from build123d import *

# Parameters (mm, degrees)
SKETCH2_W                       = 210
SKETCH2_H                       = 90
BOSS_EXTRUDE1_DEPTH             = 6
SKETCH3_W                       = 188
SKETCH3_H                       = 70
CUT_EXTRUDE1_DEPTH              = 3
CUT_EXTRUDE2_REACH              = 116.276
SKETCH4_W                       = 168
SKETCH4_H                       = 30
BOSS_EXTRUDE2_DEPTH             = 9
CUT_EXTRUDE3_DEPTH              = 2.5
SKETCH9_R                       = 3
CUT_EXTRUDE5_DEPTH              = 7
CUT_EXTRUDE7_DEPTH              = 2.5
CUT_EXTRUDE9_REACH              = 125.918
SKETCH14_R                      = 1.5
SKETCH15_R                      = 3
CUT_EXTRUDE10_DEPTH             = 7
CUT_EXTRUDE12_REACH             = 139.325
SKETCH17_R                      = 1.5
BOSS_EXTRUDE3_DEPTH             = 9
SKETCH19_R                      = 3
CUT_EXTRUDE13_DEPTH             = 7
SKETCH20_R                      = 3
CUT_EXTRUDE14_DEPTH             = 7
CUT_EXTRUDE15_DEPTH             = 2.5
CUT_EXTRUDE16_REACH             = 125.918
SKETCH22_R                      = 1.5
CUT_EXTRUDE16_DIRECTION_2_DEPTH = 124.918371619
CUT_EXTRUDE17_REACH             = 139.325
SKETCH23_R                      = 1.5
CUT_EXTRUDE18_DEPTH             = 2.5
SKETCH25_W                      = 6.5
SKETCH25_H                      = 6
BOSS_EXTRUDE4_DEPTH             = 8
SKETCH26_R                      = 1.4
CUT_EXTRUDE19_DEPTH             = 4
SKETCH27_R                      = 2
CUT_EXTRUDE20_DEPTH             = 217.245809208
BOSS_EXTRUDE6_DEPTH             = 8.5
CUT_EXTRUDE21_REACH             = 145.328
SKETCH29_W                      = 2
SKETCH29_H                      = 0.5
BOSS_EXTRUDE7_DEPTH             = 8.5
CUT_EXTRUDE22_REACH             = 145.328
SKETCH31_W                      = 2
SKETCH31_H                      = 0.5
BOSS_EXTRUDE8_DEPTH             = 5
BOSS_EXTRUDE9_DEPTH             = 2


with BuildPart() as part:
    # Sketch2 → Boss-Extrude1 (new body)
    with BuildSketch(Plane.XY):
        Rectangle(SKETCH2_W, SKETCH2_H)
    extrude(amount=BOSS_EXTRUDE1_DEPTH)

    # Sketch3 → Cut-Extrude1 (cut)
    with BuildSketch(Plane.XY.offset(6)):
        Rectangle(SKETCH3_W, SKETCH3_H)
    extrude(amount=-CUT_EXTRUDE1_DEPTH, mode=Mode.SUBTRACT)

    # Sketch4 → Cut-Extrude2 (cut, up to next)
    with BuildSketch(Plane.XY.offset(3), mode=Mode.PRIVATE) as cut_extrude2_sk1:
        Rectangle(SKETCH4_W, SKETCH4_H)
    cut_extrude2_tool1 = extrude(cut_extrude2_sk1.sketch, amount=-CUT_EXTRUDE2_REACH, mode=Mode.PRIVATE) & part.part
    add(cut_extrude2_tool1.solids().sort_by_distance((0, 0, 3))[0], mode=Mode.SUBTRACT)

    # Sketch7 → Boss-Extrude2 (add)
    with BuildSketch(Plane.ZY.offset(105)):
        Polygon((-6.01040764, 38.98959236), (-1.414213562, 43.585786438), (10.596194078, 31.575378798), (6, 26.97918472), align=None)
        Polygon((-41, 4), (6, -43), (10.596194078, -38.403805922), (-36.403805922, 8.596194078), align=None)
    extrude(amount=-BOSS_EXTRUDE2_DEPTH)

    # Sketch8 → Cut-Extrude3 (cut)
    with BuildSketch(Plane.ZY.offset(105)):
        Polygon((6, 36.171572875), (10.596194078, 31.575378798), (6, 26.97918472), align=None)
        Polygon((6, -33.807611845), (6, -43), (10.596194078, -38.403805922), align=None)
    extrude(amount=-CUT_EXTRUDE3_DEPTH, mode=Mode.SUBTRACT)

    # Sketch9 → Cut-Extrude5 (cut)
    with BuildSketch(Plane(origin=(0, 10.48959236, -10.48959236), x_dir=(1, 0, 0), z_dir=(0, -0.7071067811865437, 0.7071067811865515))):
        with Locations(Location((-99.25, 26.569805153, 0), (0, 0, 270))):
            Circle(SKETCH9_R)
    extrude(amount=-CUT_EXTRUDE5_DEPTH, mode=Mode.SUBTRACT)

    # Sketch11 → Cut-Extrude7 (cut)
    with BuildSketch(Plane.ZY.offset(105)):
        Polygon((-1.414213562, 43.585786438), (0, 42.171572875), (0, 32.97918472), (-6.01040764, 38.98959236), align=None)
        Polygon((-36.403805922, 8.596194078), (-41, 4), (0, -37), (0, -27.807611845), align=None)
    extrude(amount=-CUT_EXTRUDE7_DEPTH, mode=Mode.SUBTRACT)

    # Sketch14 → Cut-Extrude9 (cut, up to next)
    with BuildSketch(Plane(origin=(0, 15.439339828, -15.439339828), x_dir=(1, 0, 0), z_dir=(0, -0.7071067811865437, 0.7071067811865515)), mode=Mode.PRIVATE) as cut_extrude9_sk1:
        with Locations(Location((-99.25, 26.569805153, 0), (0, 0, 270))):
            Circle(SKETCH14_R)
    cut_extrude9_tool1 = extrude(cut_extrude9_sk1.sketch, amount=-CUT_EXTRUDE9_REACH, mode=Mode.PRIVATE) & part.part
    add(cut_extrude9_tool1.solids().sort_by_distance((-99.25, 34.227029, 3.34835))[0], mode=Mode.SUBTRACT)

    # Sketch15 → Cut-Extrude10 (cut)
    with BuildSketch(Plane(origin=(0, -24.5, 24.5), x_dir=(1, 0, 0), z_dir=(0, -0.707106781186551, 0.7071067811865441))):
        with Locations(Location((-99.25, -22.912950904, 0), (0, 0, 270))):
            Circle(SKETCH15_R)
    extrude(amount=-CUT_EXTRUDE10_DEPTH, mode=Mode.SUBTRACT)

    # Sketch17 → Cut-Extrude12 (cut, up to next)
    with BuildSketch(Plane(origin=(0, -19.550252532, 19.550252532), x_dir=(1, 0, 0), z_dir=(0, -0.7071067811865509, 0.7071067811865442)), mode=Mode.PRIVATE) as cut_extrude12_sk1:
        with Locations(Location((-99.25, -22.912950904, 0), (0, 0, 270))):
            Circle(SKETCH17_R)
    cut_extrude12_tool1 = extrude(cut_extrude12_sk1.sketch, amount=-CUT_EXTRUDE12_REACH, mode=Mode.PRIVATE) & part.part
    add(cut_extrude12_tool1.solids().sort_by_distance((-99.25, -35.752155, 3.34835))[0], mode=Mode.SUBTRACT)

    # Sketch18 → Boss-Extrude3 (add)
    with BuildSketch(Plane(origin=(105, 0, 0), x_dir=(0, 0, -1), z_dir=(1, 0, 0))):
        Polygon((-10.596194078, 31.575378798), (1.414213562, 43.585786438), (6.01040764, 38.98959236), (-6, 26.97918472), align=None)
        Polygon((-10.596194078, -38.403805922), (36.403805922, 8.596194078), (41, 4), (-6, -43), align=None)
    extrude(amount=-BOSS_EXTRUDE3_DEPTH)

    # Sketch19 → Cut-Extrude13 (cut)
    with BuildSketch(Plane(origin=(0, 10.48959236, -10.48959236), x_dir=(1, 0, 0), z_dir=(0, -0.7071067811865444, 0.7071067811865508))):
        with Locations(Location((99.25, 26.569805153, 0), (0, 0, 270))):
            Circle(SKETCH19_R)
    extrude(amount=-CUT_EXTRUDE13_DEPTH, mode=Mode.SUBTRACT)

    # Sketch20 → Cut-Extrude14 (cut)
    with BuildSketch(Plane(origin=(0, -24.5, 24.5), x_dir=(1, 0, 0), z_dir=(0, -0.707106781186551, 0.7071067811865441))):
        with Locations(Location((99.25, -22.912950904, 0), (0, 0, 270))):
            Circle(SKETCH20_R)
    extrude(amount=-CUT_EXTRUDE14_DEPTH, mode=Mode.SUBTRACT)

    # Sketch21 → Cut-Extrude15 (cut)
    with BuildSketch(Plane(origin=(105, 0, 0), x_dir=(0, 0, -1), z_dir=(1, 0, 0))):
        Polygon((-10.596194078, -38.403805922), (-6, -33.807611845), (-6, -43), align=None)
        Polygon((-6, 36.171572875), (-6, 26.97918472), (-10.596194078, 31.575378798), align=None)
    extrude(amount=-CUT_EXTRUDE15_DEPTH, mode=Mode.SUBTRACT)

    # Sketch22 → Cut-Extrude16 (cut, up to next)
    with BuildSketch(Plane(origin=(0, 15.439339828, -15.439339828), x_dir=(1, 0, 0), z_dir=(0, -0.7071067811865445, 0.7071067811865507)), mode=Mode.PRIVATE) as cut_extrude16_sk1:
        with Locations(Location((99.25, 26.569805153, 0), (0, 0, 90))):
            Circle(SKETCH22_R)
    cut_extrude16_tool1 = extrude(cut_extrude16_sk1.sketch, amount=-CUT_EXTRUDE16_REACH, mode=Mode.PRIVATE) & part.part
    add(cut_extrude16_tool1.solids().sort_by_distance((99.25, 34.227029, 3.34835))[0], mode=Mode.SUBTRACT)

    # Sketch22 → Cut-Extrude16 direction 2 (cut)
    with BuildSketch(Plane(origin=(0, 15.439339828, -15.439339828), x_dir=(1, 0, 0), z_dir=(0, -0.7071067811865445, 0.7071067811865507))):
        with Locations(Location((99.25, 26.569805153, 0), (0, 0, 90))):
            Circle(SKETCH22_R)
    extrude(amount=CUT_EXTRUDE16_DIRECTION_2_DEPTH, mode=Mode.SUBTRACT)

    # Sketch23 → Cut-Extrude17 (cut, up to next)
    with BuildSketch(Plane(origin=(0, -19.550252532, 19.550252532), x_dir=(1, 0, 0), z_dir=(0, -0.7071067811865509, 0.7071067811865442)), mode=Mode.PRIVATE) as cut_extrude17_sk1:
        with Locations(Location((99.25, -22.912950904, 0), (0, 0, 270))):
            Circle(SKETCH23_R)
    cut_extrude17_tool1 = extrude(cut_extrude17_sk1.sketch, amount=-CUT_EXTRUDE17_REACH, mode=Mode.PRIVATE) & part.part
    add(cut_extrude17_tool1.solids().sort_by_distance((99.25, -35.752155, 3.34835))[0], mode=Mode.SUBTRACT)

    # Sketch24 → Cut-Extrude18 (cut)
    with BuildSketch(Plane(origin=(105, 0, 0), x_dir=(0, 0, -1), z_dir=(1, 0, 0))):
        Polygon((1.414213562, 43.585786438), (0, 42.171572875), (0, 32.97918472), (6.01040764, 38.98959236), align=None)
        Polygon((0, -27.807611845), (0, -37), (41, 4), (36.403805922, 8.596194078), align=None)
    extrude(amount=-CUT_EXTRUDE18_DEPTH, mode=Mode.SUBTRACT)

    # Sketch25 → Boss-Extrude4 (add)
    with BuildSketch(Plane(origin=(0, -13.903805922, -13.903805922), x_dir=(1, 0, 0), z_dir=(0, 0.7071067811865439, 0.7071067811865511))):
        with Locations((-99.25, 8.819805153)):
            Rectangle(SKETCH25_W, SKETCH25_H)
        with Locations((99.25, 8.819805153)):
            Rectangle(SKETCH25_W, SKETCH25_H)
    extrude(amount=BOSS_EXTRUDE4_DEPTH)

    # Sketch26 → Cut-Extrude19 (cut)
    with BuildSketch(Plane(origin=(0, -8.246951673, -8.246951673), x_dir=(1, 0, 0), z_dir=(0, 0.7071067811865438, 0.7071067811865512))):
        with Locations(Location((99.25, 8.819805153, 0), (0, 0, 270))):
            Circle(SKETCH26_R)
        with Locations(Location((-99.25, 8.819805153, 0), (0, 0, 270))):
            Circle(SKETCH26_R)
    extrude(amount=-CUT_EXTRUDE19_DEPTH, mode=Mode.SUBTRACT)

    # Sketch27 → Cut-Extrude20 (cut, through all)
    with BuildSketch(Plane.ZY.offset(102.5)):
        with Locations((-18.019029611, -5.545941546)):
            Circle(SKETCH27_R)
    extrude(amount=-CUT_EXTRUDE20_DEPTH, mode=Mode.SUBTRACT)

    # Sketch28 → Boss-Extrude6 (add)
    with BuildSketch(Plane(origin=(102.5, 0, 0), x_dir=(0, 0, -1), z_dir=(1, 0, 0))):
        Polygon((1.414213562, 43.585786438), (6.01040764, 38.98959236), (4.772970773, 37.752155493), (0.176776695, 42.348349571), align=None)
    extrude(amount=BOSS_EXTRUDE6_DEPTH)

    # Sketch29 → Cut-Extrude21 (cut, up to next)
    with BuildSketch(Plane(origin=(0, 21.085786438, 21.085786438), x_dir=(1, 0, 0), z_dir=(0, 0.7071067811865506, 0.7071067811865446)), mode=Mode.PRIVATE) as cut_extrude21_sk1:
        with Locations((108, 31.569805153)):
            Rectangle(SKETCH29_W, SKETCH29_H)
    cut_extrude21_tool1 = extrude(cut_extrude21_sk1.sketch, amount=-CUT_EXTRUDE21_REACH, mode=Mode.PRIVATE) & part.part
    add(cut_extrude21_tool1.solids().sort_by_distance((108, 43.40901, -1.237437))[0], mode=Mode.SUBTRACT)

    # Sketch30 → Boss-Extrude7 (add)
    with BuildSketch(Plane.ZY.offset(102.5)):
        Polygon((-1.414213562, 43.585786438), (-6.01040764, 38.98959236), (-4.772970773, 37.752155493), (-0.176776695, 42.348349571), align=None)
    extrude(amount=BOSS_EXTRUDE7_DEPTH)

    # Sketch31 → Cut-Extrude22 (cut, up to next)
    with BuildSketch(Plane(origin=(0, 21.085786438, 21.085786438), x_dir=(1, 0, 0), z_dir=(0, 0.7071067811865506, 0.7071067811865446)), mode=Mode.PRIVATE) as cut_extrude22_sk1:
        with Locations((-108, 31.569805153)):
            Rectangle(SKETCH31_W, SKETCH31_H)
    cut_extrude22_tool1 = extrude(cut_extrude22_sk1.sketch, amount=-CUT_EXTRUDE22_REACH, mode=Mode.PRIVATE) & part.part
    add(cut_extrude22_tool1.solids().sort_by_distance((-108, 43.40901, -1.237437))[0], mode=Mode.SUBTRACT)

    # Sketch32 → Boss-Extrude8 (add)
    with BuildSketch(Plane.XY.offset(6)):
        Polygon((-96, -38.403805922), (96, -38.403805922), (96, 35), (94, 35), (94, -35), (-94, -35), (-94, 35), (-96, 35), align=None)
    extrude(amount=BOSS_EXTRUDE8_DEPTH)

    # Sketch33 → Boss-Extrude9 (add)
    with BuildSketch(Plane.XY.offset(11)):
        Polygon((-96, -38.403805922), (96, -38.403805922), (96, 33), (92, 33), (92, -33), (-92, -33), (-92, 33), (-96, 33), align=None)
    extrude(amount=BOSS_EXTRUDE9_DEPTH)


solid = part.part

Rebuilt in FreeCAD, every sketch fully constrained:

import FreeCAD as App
import Part
import Sketcher
from FreeCAD import Vector
Q = App.Units.Quantity


def add_polygon(sketch, points):
    """Adds a closed chain of lines whose ends are joined by coincident constraints."""
    first, n = sketch.GeometryCount, len(points)
    for a, b in zip(points, points[1:] + points[:1]):
        sketch.addGeometry(Part.LineSegment(App.Vector(*a, 0), App.Vector(*b, 0)), False)
    for i in range(n):
        sketch.addConstraint(Sketcher.Constraint("Coincident", first + i, 2, first + (i + 1) % n, 1))

doc = App.newDocument("Part")
body = doc.addObject("PartDesign::Body", "Body")

# Sketch on XY plane
sketch1 = body.newObject("Sketcher::SketchObject", "Sketch")
sketch1.AttachmentSupport = (doc.getObject("XY_Plane"), [""])
sketch1.MapMode = "FlatFace"
add_polygon(sketch1, [(-105, 45), (-105, -45), (105, -45), (105, 45)])  # lines 0-3
sketch1.addConstraint(Sketcher.Constraint("Vertical", 0))
sketch1.addConstraint(Sketcher.Constraint("Horizontal", 1))
sketch1.addConstraint(Sketcher.Constraint("Vertical", 2))
sketch1.addConstraint(Sketcher.Constraint("Horizontal", 3))
sketch1.addConstraint(Sketcher.Constraint("Symmetric", 0, 2, 2, 2, -1, 1))
sketch1.addConstraint(Sketcher.Constraint("DistanceX", 1, 1, 1, 2, Q("210 mm")))
sketch1.addConstraint(Sketcher.Constraint("DistanceY", 0, 2, 0, 1, Q("90 mm")))
pad1 = body.newObject("PartDesign::Pad", "Pad")
pad1.Profile = sketch1
pad1.Length = 6

# Sketch on XY plane
sketch2 = body.newObject("Sketcher::SketchObject", "Sketch001")
sketch2.AttachmentSupport = (doc.getObject("XY_Plane"), [""])
sketch2.MapMode = "FlatFace"
sketch2.AttachmentOffset = App.Placement(Vector(0, 0, 6), App.Rotation())
add_polygon(sketch2, [(-94, 35), (-94, -35), (94, -35), (94, 35)])  # lines 0-3
sketch2.addConstraint(Sketcher.Constraint("Vertical", 0))
sketch2.addConstraint(Sketcher.Constraint("Horizontal", 1))
sketch2.addConstraint(Sketcher.Constraint("Vertical", 2))
sketch2.addConstraint(Sketcher.Constraint("Horizontal", 3))
sketch2.addConstraint(Sketcher.Constraint("Symmetric", 0, 2, 2, 2, -1, 1))
sketch2.addConstraint(Sketcher.Constraint("DistanceX", 1, 1, 1, 2, Q("188 mm")))
sketch2.addConstraint(Sketcher.Constraint("DistanceY", 0, 2, 0, 1, Q("70 mm")))
pocket1 = body.newObject("PartDesign::Pocket", "Pocket")
pocket1.Profile = sketch2
pocket1.Length = 3

# Sketch on XY plane
sketch3 = body.newObject("Sketcher::SketchObject", "Sketch002")
sketch3.AttachmentSupport = (doc.getObject("XY_Plane"), [""])
sketch3.MapMode = "FlatFace"
sketch3.AttachmentOffset = App.Placement(Vector(0, 0, 3), App.Rotation())
add_polygon(sketch3, [(-84, 15), (-84, -15), (84, -15), (84, 15)])  # lines 0-3
sketch3.addConstraint(Sketcher.Constraint("Vertical", 0))
sketch3.addConstraint(Sketcher.Constraint("Horizontal", 1))
sketch3.addConstraint(Sketcher.Constraint("Vertical", 2))
sketch3.addConstraint(Sketcher.Constraint("Horizontal", 3))
sketch3.addConstraint(Sketcher.Constraint("Symmetric", 0, 2, 2, 2, -1, 1))
sketch3.addConstraint(Sketcher.Constraint("DistanceX", 1, 1, 1, 2, Q("168 mm")))
sketch3.addConstraint(Sketcher.Constraint("DistanceY", 0, 2, 0, 1, Q("30 mm")))
pocket2 = body.newObject("PartDesign::Pocket", "Pocket001")
pocket2.Profile = sketch3
pocket2.Type = "UpToFirst"

# Sketch on YZ plane
sketch4 = body.newObject("Sketcher::SketchObject", "Sketch003")
sketch4.AttachmentSupport = (doc.getObject("YZ_Plane"), [""])
sketch4.MapMode = "FlatFace"
sketch4.AttachmentOffset = App.Placement(Vector(0, 0, -105), App.Rotation())
add_polygon(sketch4, [(43.585786, -1.414214), (38.989592, -6.010408), (26.979185, 6), (31.575379, 10.596194)])  # lines 0-3
add_polygon(sketch4, [(4, -41), (-43, 6), (-38.403806, 10.596194), (8.596194, -36.403806)])  # lines 4-7
sketch4.addConstraint(Sketcher.Constraint("Perpendicular", 0, 1))
sketch4.addConstraint(Sketcher.Constraint("Perpendicular", 1, 2))
sketch4.addConstraint(Sketcher.Constraint("Perpendicular", 2, 3))
sketch4.addConstraint(Sketcher.Constraint("Parallel", 3, 4))
sketch4.addConstraint(Sketcher.Constraint("Perpendicular", 4, 5))
sketch4.addConstraint(Sketcher.Constraint("Perpendicular", 5, 6))
sketch4.addConstraint(Sketcher.Constraint("Perpendicular", 6, 7))
sketch4.addConstraint(Sketcher.Constraint("Horizontal", 1, 2, 4, 2))
sketch4.addConstraint(Sketcher.Constraint("Horizontal", 2, 2, 5, 2))
sketch4.addConstraint(Sketcher.Constraint("Angle", 0, Q("-135 deg")))
sketch4.addConstraint(Sketcher.Constraint("DistanceY", -1, 1, 1, 2, Q("6 mm")))
sketch4.addConstraint(Sketcher.Constraint("DistanceX", 4, 2, -1, 1, Q("43 mm")))
sketch4.addConstraint(Sketcher.Constraint("DistanceX", -1, 1, 7, 2, Q("4 mm")))
sketch4.addConstraint(Sketcher.Constraint("Distance", 0, Q("6.5 mm")))
sketch4.addConstraint(Sketcher.Constraint("DistanceY", 0, 2, 2, 2, Q("16.606602 mm")))
sketch4.addConstraint(Sketcher.Constraint("DistanceX", 5, 2, 0, 2, Q("77.393398 mm")))
pad2 = body.newObject("PartDesign::Pad", "Pad001")
pad2.Profile = sketch4
pad2.Length = 9

# Sketch on YZ plane
sketch5 = body.newObject("Sketcher::SketchObject", "Sketch004")
sketch5.AttachmentSupport = (doc.getObject("YZ_Plane"), [""])
sketch5.MapMode = "FlatFace"
sketch5.AttachmentOffset = App.Placement(Vector(0, 0, -105), App.Rotation())
add_polygon(sketch5, [(31.575379, 10.596194), (36.171573, 6), (26.979185, 6)])  # lines 0-2
add_polygon(sketch5, [(-33.807612, 6), (-43, 6), (-38.403806, 10.596194)])  # lines 3-5
sketch5.addConstraint(Sketcher.Constraint("Horizontal", 1))
sketch5.addConstraint(Sketcher.Constraint("Horizontal", 3))
sketch5.addConstraint(Sketcher.Constraint("Perpendicular", 0, 2))
sketch5.addConstraint(Sketcher.Constraint("Parallel", 2, 4))
sketch5.addConstraint(Sketcher.Constraint("Perpendicular", 4, 5))
sketch5.addConstraint(Sketcher.Constraint("Horizontal", 1, 2, 3, 2))
sketch5.addConstraint(Sketcher.Constraint("Horizontal", 2, 2, 4, 2))
sketch5.addConstraint(Sketcher.Constraint("Equal", 0, 2))
sketch5.addConstraint(Sketcher.Constraint("DistanceY", -1, 1, 0, 2, Q("6 mm")))
sketch5.addConstraint(Sketcher.Constraint("DistanceX", 3, 2, -1, 1, Q("43 mm")))
sketch5.addConstraint(Sketcher.Constraint("Distance", 0, Q("6.5 mm")))
sketch5.addConstraint(Sketcher.Constraint("DistanceX", -1, 1, 2, 2, Q("31.575379 mm")))
pocket3 = body.newObject("PartDesign::Pocket", "Pocket002")
pocket3.Profile = sketch5
pocket3.Length = 2.5
pocket3.Reversed = True

# Sketch on an angled plane
sketch6 = body.newObject("Sketcher::SketchObject", "Sketch005")
sketch6.Placement = App.Placement(Vector(0, 10.489592, -10.489592), App.Rotation(Vector(1, 0, 0), Vector(0, 0.707106781, 0.707106781), Vector(0, -0.707106781, 0.707106781), "ZXY"))
sketch6.addGeometry(Part.Circle(Vector(-99.25, 26.569805, 0), Vector(0, 0, 1), 3), False)
sketch6.addConstraint(Sketcher.Constraint("Diameter", 0, Q("6 mm")))
sketch6.addConstraint(Sketcher.Constraint("DistanceX", 0, 3, -1, 1, Q("99.25 mm")))
sketch6.addConstraint(Sketcher.Constraint("DistanceY", -1, 1, 0, 3, Q("26.569805 mm")))
pocket4 = body.newObject("PartDesign::Pocket", "Pocket003")
pocket4.Profile = sketch6
pocket4.Length = 7

# Sketch on YZ plane
sketch7 = body.newObject("Sketcher::SketchObject", "Sketch006")
sketch7.AttachmentSupport = (doc.getObject("YZ_Plane"), [""])
sketch7.MapMode = "FlatFace"
sketch7.AttachmentOffset = App.Placement(Vector(0, 0, -105), App.Rotation())
add_polygon(sketch7, [(42.171573, 0), (43.585786, -1.414214), (38.989592, -6.010408), (32.979185, 0)])  # lines 0-3
add_polygon(sketch7, [(8.596194, -36.403806), (4, -41), (-37, 0), (-27.807612, 0)])  # lines 4-7
sketch7.addConstraint(Sketcher.Constraint("Horizontal", 3))
sketch7.addConstraint(Sketcher.Constraint("Horizontal", 6))
sketch7.addConstraint(Sketcher.Constraint("PointOnObject", 2, 2, -1))
sketch7.addConstraint(Sketcher.Constraint("PointOnObject", 5, 2, -1))
sketch7.addConstraint(Sketcher.Constraint("Perpendicular", 0, 1))
sketch7.addConstraint(Sketcher.Constraint("Perpendicular", 1, 2))
sketch7.addConstraint(Sketcher.Constraint("Perpendicular", 2, 4))
sketch7.addConstraint(Sketcher.Constraint("Perpendicular", 4, 5))
sketch7.addConstraint(Sketcher.Constraint("Parallel", 5, 7))
sketch7.addConstraint(Sketcher.Constraint("Equal", 3, 6))
sketch7.addConstraint(Sketcher.Constraint("Angle", 0, Q("-45 deg")))
sketch7.addConstraint(Sketcher.Constraint("Distance", 0, Q("2 mm")))
sketch7.addConstraint(Sketcher.Constraint("DistanceX", -1, 1, 4, 2, Q("4 mm")))
sketch7.addConstraint(Sketcher.Constraint("DistanceY", 4, 2, -1, 1, Q("41 mm")))
sketch7.addConstraint(Sketcher.Constraint("Distance", 1, Q("6.5 mm")))
sketch7.addConstraint(Sketcher.Constraint("DistanceX", 7, 2, 1, 2, Q("30.393398 mm")))
pocket5 = body.newObject("PartDesign::Pocket", "Pocket004")
pocket5.Profile = sketch7
pocket5.Length = 2.5
pocket5.Reversed = True

# Sketch on an angled plane
sketch8 = body.newObject("Sketcher::SketchObject", "Sketch007")
sketch8.Placement = App.Placement(Vector(0, 15.43934, -15.43934), App.Rotation(Vector(1, 0, 0), Vector(0, 0.707106781, 0.707106781), Vector(0, -0.707106781, 0.707106781), "ZXY"))
sketch8.addGeometry(Part.Circle(Vector(-99.25, 26.569805, 0), Vector(0, 0, 1), 1.5), False)
sketch8.addConstraint(Sketcher.Constraint("Diameter", 0, Q("3 mm")))
sketch8.addConstraint(Sketcher.Constraint("DistanceX", 0, 3, -1, 1, Q("99.25 mm")))
sketch8.addConstraint(Sketcher.Constraint("DistanceY", -1, 1, 0, 3, Q("26.569805 mm")))
pocket6 = body.newObject("PartDesign::Pocket", "Pocket005")
pocket6.Profile = sketch8
pocket6.Type = "UpToFirst"

# Sketch on an angled plane
sketch9 = body.newObject("Sketcher::SketchObject", "Sketch008")
sketch9.Placement = App.Placement(Vector(0, -24.5, 24.5), App.Rotation(Vector(1, 0, 0), Vector(0, 0.707106781, 0.707106781), Vector(0, -0.707106781, 0.707106781), "ZXY"))
sketch9.addGeometry(Part.Circle(Vector(-99.25, -22.912951, 0), Vector(0, 0, 1), 3), False)
sketch9.addConstraint(Sketcher.Constraint("Diameter", 0, Q("6 mm")))
sketch9.addConstraint(Sketcher.Constraint("DistanceX", 0, 3, -1, 1, Q("99.25 mm")))
sketch9.addConstraint(Sketcher.Constraint("DistanceY", 0, 3, -1, 1, Q("22.912951 mm")))
pocket7 = body.newObject("PartDesign::Pocket", "Pocket006")
pocket7.Profile = sketch9
pocket7.Length = 7

# Sketch on an angled plane
sketch10 = body.newObject("Sketcher::SketchObject", "Sketch009")
sketch10.Placement = App.Placement(Vector(0, -19.550253, 19.550253), App.Rotation(Vector(1, 0, 0), Vector(0, 0.707106781, 0.707106781), Vector(0, -0.707106781, 0.707106781), "ZXY"))
sketch10.addGeometry(Part.Circle(Vector(-99.25, -22.912951, 0), Vector(0, 0, 1), 1.5), False)
sketch10.addConstraint(Sketcher.Constraint("Diameter", 0, Q("3 mm")))
sketch10.addConstraint(Sketcher.Constraint("DistanceX", 0, 3, -1, 1, Q("99.25 mm")))
sketch10.addConstraint(Sketcher.Constraint("DistanceY", 0, 3, -1, 1, Q("22.912951 mm")))
pocket8 = body.newObject("PartDesign::Pocket", "Pocket007")
pocket8.Profile = sketch10
pocket8.Type = "UpToFirst"

# Sketch on YZ plane
sketch11 = body.newObject("Sketcher::SketchObject", "Sketch010")
sketch11.AttachmentSupport = (doc.getObject("YZ_Plane"), [""])
sketch11.MapMode = "FlatFace"
sketch11.AttachmentOffset = App.Placement(Vector(0, 0, 105), App.Rotation())
add_polygon(sketch11, [(43.585786, -1.414214), (31.575379, 10.596194), (26.979185, 6), (38.989592, -6.010408)])  # lines 0-3
add_polygon(sketch11, [(8.596194, -36.403806), (-38.403806, 10.596194), (-43, 6), (4, -41)])  # lines 4-7
sketch11.addConstraint(Sketcher.Constraint("Perpendicular", 0, 1))
sketch11.addConstraint(Sketcher.Constraint("Perpendicular", 1, 2))
sketch11.addConstraint(Sketcher.Constraint("Perpendicular", 2, 3))
sketch11.addConstraint(Sketcher.Constraint("Perpendicular", 3, 4))
sketch11.addConstraint(Sketcher.Constraint("Perpendicular", 4, 5))
sketch11.addConstraint(Sketcher.Constraint("Perpendicular", 5, 6))
sketch11.addConstraint(Sketcher.Constraint("Perpendicular", 6, 7))
sketch11.addConstraint(Sketcher.Constraint("Horizontal", 0, 2, 4, 2))
sketch11.addConstraint(Sketcher.Constraint("Horizontal", 1, 2, 5, 2))
sketch11.addConstraint(Sketcher.Constraint("Angle", 0, Q("135 deg")))
sketch11.addConstraint(Sketcher.Constraint("DistanceY", -1, 1, 1, 2, Q("6 mm")))
sketch11.addConstraint(Sketcher.Constraint("DistanceX", 5, 2, -1, 1, Q("43 mm")))
sketch11.addConstraint(Sketcher.Constraint("DistanceX", -1, 1, 6, 2, Q("4 mm")))
sketch11.addConstraint(Sketcher.Constraint("Distance", 1, Q("6.5 mm")))
sketch11.addConstraint(Sketcher.Constraint("DistanceY", 2, 2, 0, 2, Q("16.606602 mm")))
sketch11.addConstraint(Sketcher.Constraint("DistanceX", 4, 2, 2, 2, Q("77.393398 mm")))
pad3 = body.newObject("PartDesign::Pad", "Pad002")
pad3.Profile = sketch11
pad3.Length = 9
pad3.Reversed = True

# Sketch on an angled plane
sketch12 = body.newObject("Sketcher::SketchObject", "Sketch011")
sketch12.Placement = App.Placement(Vector(0, 10.489592, -10.489592), App.Rotation(Vector(1, 0, 0), Vector(0, 0.707106781, 0.707106781), Vector(0, -0.707106781, 0.707106781), "ZXY"))
sketch12.addGeometry(Part.Circle(Vector(99.25, 26.569805, 0), Vector(0, 0, 1), 3), False)
sketch12.addConstraint(Sketcher.Constraint("Diameter", 0, Q("6 mm")))
sketch12.addConstraint(Sketcher.Constraint("DistanceX", -1, 1, 0, 3, Q("99.25 mm")))
sketch12.addConstraint(Sketcher.Constraint("DistanceY", -1, 1, 0, 3, Q("26.569805 mm")))
pocket9 = body.newObject("PartDesign::Pocket", "Pocket008")
pocket9.Profile = sketch12
pocket9.Length = 7

# Sketch on an angled plane
sketch13 = body.newObject("Sketcher::SketchObject", "Sketch012")
sketch13.Placement = App.Placement(Vector(0, -24.5, 24.5), App.Rotation(Vector(1, 0, 0), Vector(0, 0.707106781, 0.707106781), Vector(0, -0.707106781, 0.707106781), "ZXY"))
sketch13.addGeometry(Part.Circle(Vector(99.25, -22.912951, 0), Vector(0, 0, 1), 3), False)
sketch13.addConstraint(Sketcher.Constraint("Diameter", 0, Q("6 mm")))
sketch13.addConstraint(Sketcher.Constraint("DistanceX", -1, 1, 0, 3, Q("99.25 mm")))
sketch13.addConstraint(Sketcher.Constraint("DistanceY", 0, 3, -1, 1, Q("22.912951 mm")))
pocket10 = body.newObject("PartDesign::Pocket", "Pocket009")
pocket10.Profile = sketch13
pocket10.Length = 7

# Sketch on YZ plane
sketch14 = body.newObject("Sketcher::SketchObject", "Sketch013")
sketch14.AttachmentSupport = (doc.getObject("YZ_Plane"), [""])
sketch14.MapMode = "FlatFace"
sketch14.AttachmentOffset = App.Placement(Vector(0, 0, 105), App.Rotation())
add_polygon(sketch14, [(-33.807612, 6), (-38.403806, 10.596194), (-43, 6)])  # lines 0-2
add_polygon(sketch14, [(26.979185, 6), (36.171573, 6), (31.575379, 10.596194)])  # lines 3-5
sketch14.addConstraint(Sketcher.Constraint("Horizontal", 2))
sketch14.addConstraint(Sketcher.Constraint("Horizontal", 3))
sketch14.addConstraint(Sketcher.Constraint("Perpendicular", 0, 1))
sketch14.addConstraint(Sketcher.Constraint("Perpendicular", 1, 4))
sketch14.addConstraint(Sketcher.Constraint("Perpendicular", 4, 5))
sketch14.addConstraint(Sketcher.Constraint("Horizontal", 2, 2, 3, 2))
sketch14.addConstraint(Sketcher.Constraint("Horizontal", 0, 2, 4, 2))
sketch14.addConstraint(Sketcher.Constraint("Equal", 0, 1))
sketch14.addConstraint(Sketcher.Constraint("DistanceX", 1, 2, -1, 1, Q("43 mm")))
sketch14.addConstraint(Sketcher.Constraint("DistanceY", -1, 1, 1, 2, Q("6 mm")))
sketch14.addConstraint(Sketcher.Constraint("Distance", 0, Q("6.5 mm")))
sketch14.addConstraint(Sketcher.Constraint("DistanceX", -1, 1, 4, 2, Q("31.575379 mm")))
pocket11 = body.newObject("PartDesign::Pocket", "Pocket010")
pocket11.Profile = sketch14
pocket11.Length = 2.5

# Sketch on an angled plane
sketch15 = body.newObject("Sketcher::SketchObject", "Sketch014")
sketch15.Placement = App.Placement(Vector(0, 15.43934, -15.43934), App.Rotation(Vector(1, 0, 0), Vector(0, 0.707106781, 0.707106781), Vector(0, -0.707106781, 0.707106781), "ZXY"))
sketch15.addGeometry(Part.Circle(Vector(99.25, 26.569805, 0), Vector(0, 0, 1), 1.5), False)
sketch15.addConstraint(Sketcher.Constraint("Diameter", 0, Q("3 mm")))
sketch15.addConstraint(Sketcher.Constraint("DistanceX", -1, 1, 0, 3, Q("99.25 mm")))
sketch15.addConstraint(Sketcher.Constraint("DistanceY", -1, 1, 0, 3, Q("26.569805 mm")))
pocket12 = body.newObject("PartDesign::Pocket", "Pocket011")
pocket12.Profile = sketch15
pocket12.Type = "UpToFirst"

# Sketch on an angled plane
sketch16 = body.newObject("Sketcher::SketchObject", "Sketch015")
sketch16.Placement = App.Placement(Vector(0, 15.43934, -15.43934), App.Rotation(Vector(1, 0, 0), Vector(0, 0.707106781, 0.707106781), Vector(0, -0.707106781, 0.707106781), "ZXY"))
sketch16.addGeometry(Part.Circle(Vector(99.25, 26.569805, 0), Vector(0, 0, 1), 1.5), False)
sketch16.addConstraint(Sketcher.Constraint("Diameter", 0, Q("3 mm")))
sketch16.addConstraint(Sketcher.Constraint("DistanceX", -1, 1, 0, 3, Q("99.25 mm")))
sketch16.addConstraint(Sketcher.Constraint("DistanceY", -1, 1, 0, 3, Q("26.569805 mm")))
pocket13 = body.newObject("PartDesign::Pocket", "Pocket012")
pocket13.Profile = sketch16
pocket13.Length = 124.918372
pocket13.Reversed = True

# Sketch on an angled plane
sketch17 = body.newObject("Sketcher::SketchObject", "Sketch016")
sketch17.Placement = App.Placement(Vector(0, -19.550253, 19.550253), App.Rotation(Vector(1, 0, 0), Vector(0, 0.707106781, 0.707106781), Vector(0, -0.707106781, 0.707106781), "ZXY"))
sketch17.addGeometry(Part.Circle(Vector(99.25, -22.912951, 0), Vector(0, 0, 1), 1.5), False)
sketch17.addConstraint(Sketcher.Constraint("Diameter", 0, Q("3 mm")))
sketch17.addConstraint(Sketcher.Constraint("DistanceX", -1, 1, 0, 3, Q("99.25 mm")))
sketch17.addConstraint(Sketcher.Constraint("DistanceY", 0, 3, -1, 1, Q("22.912951 mm")))
pocket14 = body.newObject("PartDesign::Pocket", "Pocket013")
pocket14.Profile = sketch17
pocket14.Type = "UpToFirst"

# Sketch on YZ plane
sketch18 = body.newObject("Sketcher::SketchObject", "Sketch017")
sketch18.AttachmentSupport = (doc.getObject("YZ_Plane"), [""])
sketch18.MapMode = "FlatFace"
sketch18.AttachmentOffset = App.Placement(Vector(0, 0, 105), App.Rotation())
add_polygon(sketch18, [(43.585786, -1.414214), (42.171573, 0), (32.979185, 0), (38.989592, -6.010408)])  # lines 0-3
add_polygon(sketch18, [(-27.807612, 0), (-37, 0), (4, -41), (8.596194, -36.403806)])  # lines 4-7
sketch18.addConstraint(Sketcher.Constraint("Horizontal", 1))
sketch18.addConstraint(Sketcher.Constraint("Horizontal", 4))
sketch18.addConstraint(Sketcher.Constraint("PointOnObject", 0, 2, -1))
sketch18.addConstraint(Sketcher.Constraint("PointOnObject", 4, 2, -1))
sketch18.addConstraint(Sketcher.Constraint("Parallel", 0, 2))
sketch18.addConstraint(Sketcher.Constraint("Perpendicular", 2, 3))
sketch18.addConstraint(Sketcher.Constraint("Perpendicular", 3, 5))
sketch18.addConstraint(Sketcher.Constraint("Perpendicular", 5, 6))
sketch18.addConstraint(Sketcher.Constraint("Perpendicular", 6, 7))
sketch18.addConstraint(Sketcher.Constraint("Equal", 1, 4))
sketch18.addConstraint(Sketcher.Constraint("Angle", 0, Q("135 deg")))
sketch18.addConstraint(Sketcher.Constraint("Distance", 0, Q("2 mm")))
sketch18.addConstraint(Sketcher.Constraint("DistanceX", 4, 2, -1, 1, Q("37 mm")))
sketch18.addConstraint(Sketcher.Constraint("DistanceX", -1, 1, 5, 2, Q("4 mm")))
sketch18.addConstraint(Sketcher.Constraint("Distance", 2, Q("8.5 mm")))
sketch18.addConstraint(Sketcher.Constraint("DistanceX", 6, 2, 2, 2, Q("30.393398 mm")))
pocket15 = body.newObject("PartDesign::Pocket", "Pocket014")
pocket15.Profile = sketch18
pocket15.Length = 2.5

# Sketch on an angled plane
sketch19 = body.newObject("Sketcher::SketchObject", "Sketch018")
sketch19.Placement = App.Placement(Vector(0, -13.903806, -13.903806), App.Rotation(Vector(1, 0, 0), Vector(0, 0.707106781, -0.707106781), Vector(0, 0.707106781, 0.707106781), "ZXY"))
add_polygon(sketch19, [(-102.5, 11.819805), (-102.5, 5.819805), (-96, 5.819805), (-96, 11.819805)])  # lines 0-3
add_polygon(sketch19, [(96, 11.819805), (96, 5.819805), (102.5, 5.819805), (102.5, 11.819805)])  # lines 4-7
sketch19.addConstraint(Sketcher.Constraint("Vertical", 0))
sketch19.addConstraint(Sketcher.Constraint("Horizontal", 1))
sketch19.addConstraint(Sketcher.Constraint("Vertical", 2))
sketch19.addConstraint(Sketcher.Constraint("Horizontal", 3))
sketch19.addConstraint(Sketcher.Constraint("Vertical", 4))
sketch19.addConstraint(Sketcher.Constraint("Horizontal", 5))
sketch19.addConstraint(Sketcher.Constraint("Vertical", 6))
sketch19.addConstraint(Sketcher.Constraint("Horizontal", 7))
sketch19.addConstraint(Sketcher.Constraint("Symmetric", 1, 2, 4, 2, -2))
sketch19.addConstraint(Sketcher.Constraint("Symmetric", 3, 2, 6, 2, -2))
sketch19.addConstraint(Sketcher.Constraint("DistanceY", 0, 2, 0, 1, Q("6 mm")))
sketch19.addConstraint(Sketcher.Constraint("DistanceX", 1, 1, 1, 2, Q("6.5 mm")))
sketch19.addConstraint(Sketcher.Constraint("DistanceX", 1, 2, -1, 1, Q("96 mm")))
sketch19.addConstraint(Sketcher.Constraint("DistanceY", -1, 1, 0, 2, Q("5.819805 mm")))
pad4 = body.newObject("PartDesign::Pad", "Pad003")
pad4.Profile = sketch19
pad4.Length = 8

# Sketch on an angled plane
sketch20 = body.newObject("Sketcher::SketchObject", "Sketch019")
sketch20.Placement = App.Placement(Vector(0, -8.246952, -8.246952), App.Rotation(Vector(1, 0, 0), Vector(0, 0.707106781, -0.707106781), Vector(0, 0.707106781, 0.707106781), "ZXY"))
sketch20.addGeometry(Part.Circle(Vector(99.25, 8.819805, 0), Vector(0, 0, 1), 1.4), False)
sketch20.addGeometry(Part.Circle(Vector(-99.25, 8.819805, 0), Vector(0, 0, 1), 1.4), False)
sketch20.addConstraint(Sketcher.Constraint("Equal", 0, 1))
sketch20.addConstraint(Sketcher.Constraint("Symmetric", 0, 3, 1, 3, -2))
sketch20.addConstraint(Sketcher.Constraint("Diameter", 0, Q("2.8 mm")))
sketch20.addConstraint(Sketcher.Constraint("DistanceX", 1, 3, 0, 3, Q("198.5 mm")))
sketch20.addConstraint(Sketcher.Constraint("DistanceY", -1, 1, 0, 3, Q("8.819805 mm")))
pocket16 = body.newObject("PartDesign::Pocket", "Pocket015")
pocket16.Profile = sketch20
pocket16.Length = 4

# Sketch on YZ plane
sketch21 = body.newObject("Sketcher::SketchObject", "Sketch020")
sketch21.AttachmentSupport = (doc.getObject("YZ_Plane"), [""])
sketch21.MapMode = "FlatFace"
sketch21.AttachmentOffset = App.Placement(Vector(0, 0, -102.5), App.Rotation())
sketch21.addGeometry(Part.Circle(Vector(-5.545942, -18.01903, 0), Vector(0, 0, 1), 2), False)
sketch21.addConstraint(Sketcher.Constraint("Diameter", 0, Q("4 mm")))
sketch21.addConstraint(Sketcher.Constraint("DistanceX", 0, 3, -1, 1, Q("5.545942 mm")))
sketch21.addConstraint(Sketcher.Constraint("DistanceY", 0, 3, -1, 1, Q("18.01903 mm")))
pocket17 = body.newObject("PartDesign::Pocket", "Pocket016")
pocket17.Profile = sketch21
pocket17.Type = "ThroughAll"
pocket17.Reversed = True

# Sketch on YZ plane
sketch22 = body.newObject("Sketcher::SketchObject", "Sketch021")
sketch22.AttachmentSupport = (doc.getObject("YZ_Plane"), [""])
sketch22.MapMode = "FlatFace"
sketch22.AttachmentOffset = App.Placement(Vector(0, 0, 102.5), App.Rotation())
add_polygon(sketch22, [(38.989592, -6.010408), (43.585786, -1.414214), (42.34835, -0.176777), (37.752155, -4.772971)])  # lines 0-3
sketch22.addConstraint(Sketcher.Constraint("Perpendicular", 0, 1))
sketch22.addConstraint(Sketcher.Constraint("Perpendicular", 1, 2))
sketch22.addConstraint(Sketcher.Constraint("Perpendicular", 2, 3))
sketch22.addConstraint(Sketcher.Constraint("Angle", 0, Q("45 deg")))
sketch22.addConstraint(Sketcher.Constraint("Distance", 0, Q("6.5 mm")))
sketch22.addConstraint(Sketcher.Constraint("Distance", 1, Q("1.75 mm")))
sketch22.addConstraint(Sketcher.Constraint("DistanceX", -1, 1, 1, 2, Q("42.34835 mm")))
sketch22.addConstraint(Sketcher.Constraint("DistanceY", 2, 2, -1, 1, Q("4.772971 mm")))
pad5 = body.newObject("PartDesign::Pad", "Pad004")
pad5.Profile = sketch22
pad5.Length = 8.5

# Sketch on an angled plane
sketch23 = body.newObject("Sketcher::SketchObject", "Sketch022")
sketch23.Placement = App.Placement(Vector(0, 21.085786, 21.085786), App.Rotation(Vector(1, 0, 0), Vector(0, 0.707106781, -0.707106781), Vector(0, 0.707106781, 0.707106781), "ZXY"))
add_polygon(sketch23, [(107, 31.819805), (107, 31.319805), (109, 31.319805), (109, 31.819805)])  # lines 0-3
sketch23.addConstraint(Sketcher.Constraint("Vertical", 0))
sketch23.addConstraint(Sketcher.Constraint("Horizontal", 1))
sketch23.addConstraint(Sketcher.Constraint("Vertical", 2))
sketch23.addConstraint(Sketcher.Constraint("Horizontal", 3))
sketch23.addConstraint(Sketcher.Constraint("DistanceX", 1, 1, 1, 2, Q("2 mm")))
sketch23.addConstraint(Sketcher.Constraint("DistanceY", 0, 2, 0, 1, Q("0.5 mm")))
sketch23.addConstraint(Sketcher.Constraint("DistanceX", -1, 1, 0, 2, Q("107 mm")))
sketch23.addConstraint(Sketcher.Constraint("DistanceY", -1, 1, 0, 2, Q("31.319805 mm")))
pocket18 = body.newObject("PartDesign::Pocket", "Pocket017")
pocket18.Profile = sketch23
pocket18.Type = "UpToFirst"

# Sketch on YZ plane
sketch24 = body.newObject("Sketcher::SketchObject", "Sketch023")
sketch24.AttachmentSupport = (doc.getObject("YZ_Plane"), [""])
sketch24.MapMode = "FlatFace"
sketch24.AttachmentOffset = App.Placement(Vector(0, 0, -102.5), App.Rotation())
add_polygon(sketch24, [(43.585786, -1.414214), (38.989592, -6.010408), (37.752155, -4.772971), (42.34835, -0.176777)])  # lines 0-3
sketch24.addConstraint(Sketcher.Constraint("Perpendicular", 0, 1))
sketch24.addConstraint(Sketcher.Constraint("Perpendicular", 1, 2))
sketch24.addConstraint(Sketcher.Constraint("Perpendicular", 2, 3))
sketch24.addConstraint(Sketcher.Constraint("Angle", 0, Q("-135 deg")))
sketch24.addConstraint(Sketcher.Constraint("Distance", 0, Q("6.5 mm")))
sketch24.addConstraint(Sketcher.Constraint("Distance", 1, Q("1.75 mm")))
sketch24.addConstraint(Sketcher.Constraint("DistanceY", 1, 2, -1, 1, Q("4.772971 mm")))
sketch24.addConstraint(Sketcher.Constraint("DistanceX", -1, 1, 2, 2, Q("42.34835 mm")))
pad6 = body.newObject("PartDesign::Pad", "Pad005")
pad6.Profile = sketch24
pad6.Length = 8.5
pad6.Reversed = True

# Sketch on an angled plane
sketch25 = body.newObject("Sketcher::SketchObject", "Sketch024")
sketch25.Placement = App.Placement(Vector(0, 21.085786, 21.085786), App.Rotation(Vector(1, 0, 0), Vector(0, 0.707106781, -0.707106781), Vector(0, 0.707106781, 0.707106781), "ZXY"))
add_polygon(sketch25, [(-109, 31.819805), (-109, 31.319805), (-107, 31.319805), (-107, 31.819805)])  # lines 0-3
sketch25.addConstraint(Sketcher.Constraint("Vertical", 0))
sketch25.addConstraint(Sketcher.Constraint("Horizontal", 1))
sketch25.addConstraint(Sketcher.Constraint("Vertical", 2))
sketch25.addConstraint(Sketcher.Constraint("Horizontal", 3))
sketch25.addConstraint(Sketcher.Constraint("DistanceX", 1, 1, 1, 2, Q("2 mm")))
sketch25.addConstraint(Sketcher.Constraint("DistanceY", 0, 2, 0, 1, Q("0.5 mm")))
sketch25.addConstraint(Sketcher.Constraint("DistanceX", 0, 2, -1, 1, Q("109 mm")))
sketch25.addConstraint(Sketcher.Constraint("DistanceY", -1, 1, 0, 2, Q("31.319805 mm")))
pocket19 = body.newObject("PartDesign::Pocket", "Pocket018")
pocket19.Profile = sketch25
pocket19.Type = "UpToFirst"

# Sketch on XY plane
sketch26 = body.newObject("Sketcher::SketchObject", "Sketch025")
sketch26.AttachmentSupport = (doc.getObject("XY_Plane"), [""])
sketch26.MapMode = "FlatFace"
sketch26.AttachmentOffset = App.Placement(Vector(0, 0, 6), App.Rotation())
add_polygon(sketch26, [(-96, -38.403806), (96, -38.403806), (96, 35), (94, 35), (94, -35), (-94, -35), (-94, 35), (-96, 35)])  # lines 0-7
sketch26.addConstraint(Sketcher.Constraint("Horizontal", 0))
sketch26.addConstraint(Sketcher.Constraint("Vertical", 1))
sketch26.addConstraint(Sketcher.Constraint("Horizontal", 2))
sketch26.addConstraint(Sketcher.Constraint("Vertical", 3))
sketch26.addConstraint(Sketcher.Constraint("Horizontal", 4))
sketch26.addConstraint(Sketcher.Constraint("Vertical", 5))
sketch26.addConstraint(Sketcher.Constraint("Horizontal", 6))
sketch26.addConstraint(Sketcher.Constraint("Vertical", 7))
sketch26.addConstraint(Sketcher.Constraint("Symmetric", 2, 2, 4, 2, -1, 1))
sketch26.addConstraint(Sketcher.Constraint("Symmetric", 1, 2, 6, 2, -2))
sketch26.addConstraint(Sketcher.Constraint("DistanceX", 0, 1, 0, 2, Q("192 mm")))
sketch26.addConstraint(Sketcher.Constraint("DistanceX", 2, 2, 2, 1, Q("2 mm")))
sketch26.addConstraint(Sketcher.Constraint("DistanceY", 3, 2, 3, 1, Q("70 mm")))
sketch26.addConstraint(Sketcher.Constraint("DistanceY", 1, 1, 1, 2, Q("73.403806 mm")))
pad7 = body.newObject("PartDesign::Pad", "Pad006")
pad7.Profile = sketch26
pad7.Length = 5

# Sketch on XY plane
sketch27 = body.newObject("Sketcher::SketchObject", "Sketch026")
sketch27.AttachmentSupport = (doc.getObject("XY_Plane"), [""])
sketch27.MapMode = "FlatFace"
sketch27.AttachmentOffset = App.Placement(Vector(0, 0, 11), App.Rotation())
add_polygon(sketch27, [(-96, -38.403806), (96, -38.403806), (96, 33), (92, 33), (92, -33), (-92, -33), (-92, 33), (-96, 33)])  # lines 0-7
sketch27.addConstraint(Sketcher.Constraint("Horizontal", 0))
sketch27.addConstraint(Sketcher.Constraint("Vertical", 1))
sketch27.addConstraint(Sketcher.Constraint("Horizontal", 2))
sketch27.addConstraint(Sketcher.Constraint("Vertical", 3))
sketch27.addConstraint(Sketcher.Constraint("Horizontal", 4))
sketch27.addConstraint(Sketcher.Constraint("Vertical", 5))
sketch27.addConstraint(Sketcher.Constraint("Horizontal", 6))
sketch27.addConstraint(Sketcher.Constraint("Vertical", 7))
sketch27.addConstraint(Sketcher.Constraint("Symmetric", 2, 2, 4, 2, -1, 1))
sketch27.addConstraint(Sketcher.Constraint("Symmetric", 1, 2, 6, 2, -2))
sketch27.addConstraint(Sketcher.Constraint("DistanceX", 0, 1, 0, 2, Q("192 mm")))
sketch27.addConstraint(Sketcher.Constraint("DistanceX", 2, 2, 2, 1, Q("4 mm")))
sketch27.addConstraint(Sketcher.Constraint("DistanceY", 3, 2, 3, 1, Q("66 mm")))
sketch27.addConstraint(Sketcher.Constraint("DistanceY", 1, 1, 1, 2, Q("71.403806 mm")))
pad8 = body.newObject("PartDesign::Pad", "Pad007")
pad8.Profile = sketch27
pad8.Length = 2

doc.recompute()
